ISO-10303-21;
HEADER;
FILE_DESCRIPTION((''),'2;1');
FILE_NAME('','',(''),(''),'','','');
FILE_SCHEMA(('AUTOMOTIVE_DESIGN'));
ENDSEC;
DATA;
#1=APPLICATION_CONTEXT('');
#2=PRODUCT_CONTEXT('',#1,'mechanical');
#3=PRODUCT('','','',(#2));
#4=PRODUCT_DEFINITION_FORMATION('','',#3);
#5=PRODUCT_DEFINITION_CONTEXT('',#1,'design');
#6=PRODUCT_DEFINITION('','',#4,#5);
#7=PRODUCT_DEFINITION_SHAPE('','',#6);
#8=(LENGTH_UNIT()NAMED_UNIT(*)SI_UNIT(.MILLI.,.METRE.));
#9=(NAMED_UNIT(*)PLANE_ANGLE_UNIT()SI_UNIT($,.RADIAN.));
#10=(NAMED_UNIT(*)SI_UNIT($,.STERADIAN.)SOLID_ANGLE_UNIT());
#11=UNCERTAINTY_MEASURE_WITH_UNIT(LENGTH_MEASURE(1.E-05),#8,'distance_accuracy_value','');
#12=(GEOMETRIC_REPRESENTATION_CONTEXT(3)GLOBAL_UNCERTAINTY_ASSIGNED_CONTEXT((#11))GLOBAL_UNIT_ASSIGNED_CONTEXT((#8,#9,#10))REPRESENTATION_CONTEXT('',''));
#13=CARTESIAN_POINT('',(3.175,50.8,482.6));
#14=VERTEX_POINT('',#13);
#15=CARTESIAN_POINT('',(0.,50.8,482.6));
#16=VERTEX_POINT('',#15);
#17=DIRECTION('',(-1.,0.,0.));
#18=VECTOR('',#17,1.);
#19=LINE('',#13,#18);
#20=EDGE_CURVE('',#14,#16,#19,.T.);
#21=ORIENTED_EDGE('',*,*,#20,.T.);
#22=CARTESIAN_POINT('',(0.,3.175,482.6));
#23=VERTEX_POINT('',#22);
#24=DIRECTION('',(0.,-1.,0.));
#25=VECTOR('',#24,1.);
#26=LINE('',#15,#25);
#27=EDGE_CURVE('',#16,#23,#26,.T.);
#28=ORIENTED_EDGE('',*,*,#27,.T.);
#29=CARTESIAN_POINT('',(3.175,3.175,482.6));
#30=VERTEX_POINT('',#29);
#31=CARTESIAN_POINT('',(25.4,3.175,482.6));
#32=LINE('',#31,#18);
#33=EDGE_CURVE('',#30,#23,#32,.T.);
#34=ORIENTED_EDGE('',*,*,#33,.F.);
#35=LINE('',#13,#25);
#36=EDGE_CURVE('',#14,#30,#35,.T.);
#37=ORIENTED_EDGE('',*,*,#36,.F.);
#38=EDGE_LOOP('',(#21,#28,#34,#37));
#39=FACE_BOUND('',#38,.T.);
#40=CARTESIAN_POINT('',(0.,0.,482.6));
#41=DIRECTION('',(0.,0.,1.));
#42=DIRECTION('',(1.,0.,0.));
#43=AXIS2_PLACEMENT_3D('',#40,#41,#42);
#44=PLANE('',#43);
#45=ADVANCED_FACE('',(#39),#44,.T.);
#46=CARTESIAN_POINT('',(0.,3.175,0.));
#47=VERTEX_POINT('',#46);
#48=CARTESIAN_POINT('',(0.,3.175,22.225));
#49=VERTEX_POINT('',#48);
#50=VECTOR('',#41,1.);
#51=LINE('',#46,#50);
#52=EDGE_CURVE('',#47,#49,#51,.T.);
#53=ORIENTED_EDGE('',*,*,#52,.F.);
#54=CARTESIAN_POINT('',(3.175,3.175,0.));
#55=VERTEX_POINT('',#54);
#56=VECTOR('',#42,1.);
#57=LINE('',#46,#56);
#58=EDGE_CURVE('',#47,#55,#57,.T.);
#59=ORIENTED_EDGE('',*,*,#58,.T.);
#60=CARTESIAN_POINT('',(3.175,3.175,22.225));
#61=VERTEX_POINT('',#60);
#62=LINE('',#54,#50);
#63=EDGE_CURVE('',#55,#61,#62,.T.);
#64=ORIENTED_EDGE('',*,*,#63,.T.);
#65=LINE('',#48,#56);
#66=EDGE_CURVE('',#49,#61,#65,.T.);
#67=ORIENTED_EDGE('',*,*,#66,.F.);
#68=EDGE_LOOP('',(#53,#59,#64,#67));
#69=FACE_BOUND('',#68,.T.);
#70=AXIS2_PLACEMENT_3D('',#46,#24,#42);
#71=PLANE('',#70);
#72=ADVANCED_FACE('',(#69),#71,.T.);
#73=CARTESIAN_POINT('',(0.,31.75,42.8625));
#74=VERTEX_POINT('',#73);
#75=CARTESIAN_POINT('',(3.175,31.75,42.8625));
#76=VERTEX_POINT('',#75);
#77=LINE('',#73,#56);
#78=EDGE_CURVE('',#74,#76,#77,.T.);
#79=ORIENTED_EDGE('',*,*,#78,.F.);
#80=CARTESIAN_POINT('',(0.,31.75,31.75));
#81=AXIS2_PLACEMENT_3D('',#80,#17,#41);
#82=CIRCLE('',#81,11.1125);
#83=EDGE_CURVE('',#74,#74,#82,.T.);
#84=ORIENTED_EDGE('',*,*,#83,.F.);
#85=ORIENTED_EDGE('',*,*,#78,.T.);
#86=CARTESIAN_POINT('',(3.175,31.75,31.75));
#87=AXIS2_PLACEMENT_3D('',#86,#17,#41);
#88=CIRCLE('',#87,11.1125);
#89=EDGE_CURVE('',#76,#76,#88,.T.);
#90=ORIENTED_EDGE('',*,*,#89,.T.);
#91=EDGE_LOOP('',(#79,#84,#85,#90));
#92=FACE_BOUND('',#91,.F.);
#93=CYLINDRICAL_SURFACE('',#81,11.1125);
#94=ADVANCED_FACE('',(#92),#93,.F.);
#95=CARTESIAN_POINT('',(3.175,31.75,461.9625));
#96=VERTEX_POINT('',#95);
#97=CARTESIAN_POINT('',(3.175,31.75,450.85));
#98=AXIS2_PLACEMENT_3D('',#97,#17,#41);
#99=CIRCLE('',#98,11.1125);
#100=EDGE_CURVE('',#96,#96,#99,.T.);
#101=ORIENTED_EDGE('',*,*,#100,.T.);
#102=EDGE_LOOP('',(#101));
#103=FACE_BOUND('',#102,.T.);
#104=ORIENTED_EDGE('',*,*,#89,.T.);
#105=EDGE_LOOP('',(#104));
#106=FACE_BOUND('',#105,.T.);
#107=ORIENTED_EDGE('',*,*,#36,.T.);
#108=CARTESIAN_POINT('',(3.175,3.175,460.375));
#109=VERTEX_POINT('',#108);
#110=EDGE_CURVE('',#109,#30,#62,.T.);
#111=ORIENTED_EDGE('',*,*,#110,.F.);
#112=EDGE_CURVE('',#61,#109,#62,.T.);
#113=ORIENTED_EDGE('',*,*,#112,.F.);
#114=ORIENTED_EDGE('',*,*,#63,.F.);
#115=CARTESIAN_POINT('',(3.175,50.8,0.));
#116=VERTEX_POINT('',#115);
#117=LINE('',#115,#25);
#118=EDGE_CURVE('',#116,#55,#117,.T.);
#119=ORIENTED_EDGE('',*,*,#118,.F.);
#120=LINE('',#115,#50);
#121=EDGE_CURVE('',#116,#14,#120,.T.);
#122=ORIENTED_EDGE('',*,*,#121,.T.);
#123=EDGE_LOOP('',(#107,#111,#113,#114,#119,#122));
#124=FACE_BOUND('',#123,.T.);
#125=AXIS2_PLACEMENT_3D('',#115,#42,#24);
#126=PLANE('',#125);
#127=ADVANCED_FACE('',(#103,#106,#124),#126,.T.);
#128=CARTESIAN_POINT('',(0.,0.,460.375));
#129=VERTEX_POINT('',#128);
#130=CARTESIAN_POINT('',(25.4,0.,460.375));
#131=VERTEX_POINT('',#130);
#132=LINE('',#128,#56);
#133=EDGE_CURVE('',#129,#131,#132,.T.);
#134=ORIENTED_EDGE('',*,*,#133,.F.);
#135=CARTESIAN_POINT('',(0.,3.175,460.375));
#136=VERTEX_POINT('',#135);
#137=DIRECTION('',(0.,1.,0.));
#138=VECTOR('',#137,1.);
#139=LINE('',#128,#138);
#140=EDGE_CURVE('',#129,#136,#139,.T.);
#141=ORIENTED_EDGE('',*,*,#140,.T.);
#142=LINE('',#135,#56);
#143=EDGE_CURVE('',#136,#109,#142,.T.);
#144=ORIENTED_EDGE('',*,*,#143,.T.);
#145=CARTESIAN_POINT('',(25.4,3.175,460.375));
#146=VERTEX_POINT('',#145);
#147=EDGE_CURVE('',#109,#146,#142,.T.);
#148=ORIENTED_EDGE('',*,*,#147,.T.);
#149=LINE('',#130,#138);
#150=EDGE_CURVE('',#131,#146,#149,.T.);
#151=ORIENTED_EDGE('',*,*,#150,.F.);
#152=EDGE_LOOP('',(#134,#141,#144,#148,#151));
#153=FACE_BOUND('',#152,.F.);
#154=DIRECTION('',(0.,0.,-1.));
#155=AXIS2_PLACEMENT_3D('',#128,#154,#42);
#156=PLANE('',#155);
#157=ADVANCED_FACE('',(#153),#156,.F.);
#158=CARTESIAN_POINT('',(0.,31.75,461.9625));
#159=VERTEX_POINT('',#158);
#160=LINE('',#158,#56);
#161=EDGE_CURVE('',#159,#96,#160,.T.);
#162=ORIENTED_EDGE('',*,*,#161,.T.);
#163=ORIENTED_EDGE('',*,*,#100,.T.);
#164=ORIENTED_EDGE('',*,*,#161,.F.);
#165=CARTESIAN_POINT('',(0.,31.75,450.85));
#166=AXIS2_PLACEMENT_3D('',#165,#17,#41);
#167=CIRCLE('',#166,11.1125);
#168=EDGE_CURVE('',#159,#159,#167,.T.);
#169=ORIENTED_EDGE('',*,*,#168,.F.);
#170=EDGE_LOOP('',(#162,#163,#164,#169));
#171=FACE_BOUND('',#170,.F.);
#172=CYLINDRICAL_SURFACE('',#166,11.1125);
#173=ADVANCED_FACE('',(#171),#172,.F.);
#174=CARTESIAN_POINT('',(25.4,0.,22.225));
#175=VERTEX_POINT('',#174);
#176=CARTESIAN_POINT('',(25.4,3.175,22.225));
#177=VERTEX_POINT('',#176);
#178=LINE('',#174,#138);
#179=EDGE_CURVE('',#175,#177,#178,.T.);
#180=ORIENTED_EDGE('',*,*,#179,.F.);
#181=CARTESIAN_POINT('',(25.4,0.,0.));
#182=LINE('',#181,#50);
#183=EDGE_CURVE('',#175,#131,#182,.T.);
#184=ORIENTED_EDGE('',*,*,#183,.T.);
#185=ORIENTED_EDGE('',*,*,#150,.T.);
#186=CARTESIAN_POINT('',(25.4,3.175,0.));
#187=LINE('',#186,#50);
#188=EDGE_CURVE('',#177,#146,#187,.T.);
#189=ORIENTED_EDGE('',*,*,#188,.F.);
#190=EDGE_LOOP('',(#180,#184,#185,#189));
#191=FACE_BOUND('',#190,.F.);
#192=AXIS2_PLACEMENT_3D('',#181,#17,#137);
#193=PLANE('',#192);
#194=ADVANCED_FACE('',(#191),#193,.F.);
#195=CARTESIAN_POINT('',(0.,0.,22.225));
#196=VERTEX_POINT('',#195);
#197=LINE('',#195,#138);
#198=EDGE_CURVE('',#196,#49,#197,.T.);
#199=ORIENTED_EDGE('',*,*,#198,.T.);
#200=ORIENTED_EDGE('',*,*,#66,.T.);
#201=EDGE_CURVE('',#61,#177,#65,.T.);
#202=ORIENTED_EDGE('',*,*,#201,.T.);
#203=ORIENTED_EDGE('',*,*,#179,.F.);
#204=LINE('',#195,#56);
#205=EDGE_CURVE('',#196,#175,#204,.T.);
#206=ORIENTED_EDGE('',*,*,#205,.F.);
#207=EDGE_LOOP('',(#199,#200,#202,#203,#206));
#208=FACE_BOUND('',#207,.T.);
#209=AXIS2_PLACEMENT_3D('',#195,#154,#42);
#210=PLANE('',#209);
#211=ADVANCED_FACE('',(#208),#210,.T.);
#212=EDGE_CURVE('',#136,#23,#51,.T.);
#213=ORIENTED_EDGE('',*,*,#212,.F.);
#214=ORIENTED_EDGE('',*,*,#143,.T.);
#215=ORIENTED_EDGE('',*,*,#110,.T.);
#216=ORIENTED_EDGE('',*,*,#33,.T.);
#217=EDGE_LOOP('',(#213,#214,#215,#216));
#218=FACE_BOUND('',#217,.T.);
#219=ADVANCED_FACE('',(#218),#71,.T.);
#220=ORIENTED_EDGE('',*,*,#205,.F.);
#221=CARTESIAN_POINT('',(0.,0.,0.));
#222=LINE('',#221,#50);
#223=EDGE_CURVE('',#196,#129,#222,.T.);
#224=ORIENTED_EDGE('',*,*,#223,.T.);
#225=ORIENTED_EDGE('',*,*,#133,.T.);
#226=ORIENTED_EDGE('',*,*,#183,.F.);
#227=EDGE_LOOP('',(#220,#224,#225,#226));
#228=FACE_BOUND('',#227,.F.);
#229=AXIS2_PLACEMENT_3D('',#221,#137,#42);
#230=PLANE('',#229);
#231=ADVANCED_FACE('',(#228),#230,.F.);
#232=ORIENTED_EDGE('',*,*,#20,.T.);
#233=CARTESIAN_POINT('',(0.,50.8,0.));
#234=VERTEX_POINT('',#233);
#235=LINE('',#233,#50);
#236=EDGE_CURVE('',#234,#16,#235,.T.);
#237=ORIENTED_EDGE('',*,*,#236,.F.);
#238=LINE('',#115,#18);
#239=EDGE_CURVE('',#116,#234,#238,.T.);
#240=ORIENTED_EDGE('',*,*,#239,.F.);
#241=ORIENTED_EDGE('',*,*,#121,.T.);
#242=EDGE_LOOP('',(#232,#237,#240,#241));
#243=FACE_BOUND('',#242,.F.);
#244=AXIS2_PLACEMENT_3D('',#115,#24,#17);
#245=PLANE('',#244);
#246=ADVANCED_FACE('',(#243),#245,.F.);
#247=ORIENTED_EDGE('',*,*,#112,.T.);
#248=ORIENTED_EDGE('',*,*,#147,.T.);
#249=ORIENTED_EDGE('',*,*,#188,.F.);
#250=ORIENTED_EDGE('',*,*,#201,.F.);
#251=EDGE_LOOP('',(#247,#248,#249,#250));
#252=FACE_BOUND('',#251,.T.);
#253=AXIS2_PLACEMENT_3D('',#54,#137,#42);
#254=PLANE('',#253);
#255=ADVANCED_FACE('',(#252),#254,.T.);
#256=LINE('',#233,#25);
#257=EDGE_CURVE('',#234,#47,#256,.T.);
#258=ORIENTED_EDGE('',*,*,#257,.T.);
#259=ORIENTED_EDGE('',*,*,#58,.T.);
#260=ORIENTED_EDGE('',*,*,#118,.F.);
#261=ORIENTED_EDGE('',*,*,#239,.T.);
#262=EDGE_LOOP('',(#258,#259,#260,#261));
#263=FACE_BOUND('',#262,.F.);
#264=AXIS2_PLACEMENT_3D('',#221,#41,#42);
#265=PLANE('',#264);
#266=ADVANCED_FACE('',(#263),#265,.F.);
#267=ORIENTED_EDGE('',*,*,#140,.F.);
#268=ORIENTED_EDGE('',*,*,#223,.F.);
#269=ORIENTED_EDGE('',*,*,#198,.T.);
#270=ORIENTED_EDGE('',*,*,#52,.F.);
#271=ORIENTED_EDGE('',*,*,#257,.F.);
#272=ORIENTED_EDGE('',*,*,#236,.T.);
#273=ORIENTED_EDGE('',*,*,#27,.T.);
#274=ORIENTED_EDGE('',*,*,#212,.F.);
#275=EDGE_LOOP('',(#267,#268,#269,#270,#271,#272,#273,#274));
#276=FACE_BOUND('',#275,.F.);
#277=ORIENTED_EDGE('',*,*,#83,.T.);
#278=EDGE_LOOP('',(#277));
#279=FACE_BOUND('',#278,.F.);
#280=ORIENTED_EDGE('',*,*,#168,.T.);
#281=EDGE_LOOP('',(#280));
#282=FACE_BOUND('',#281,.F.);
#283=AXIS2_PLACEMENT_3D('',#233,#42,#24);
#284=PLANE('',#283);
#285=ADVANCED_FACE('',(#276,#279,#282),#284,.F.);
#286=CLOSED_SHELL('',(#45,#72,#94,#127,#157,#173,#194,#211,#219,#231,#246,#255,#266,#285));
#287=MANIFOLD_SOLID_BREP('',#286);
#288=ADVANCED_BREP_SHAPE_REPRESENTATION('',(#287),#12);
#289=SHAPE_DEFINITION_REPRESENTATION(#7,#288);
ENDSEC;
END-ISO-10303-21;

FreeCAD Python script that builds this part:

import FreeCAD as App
import Part
import Sketcher
Q = App.Units.Quantity

doc = App.newDocument("Part")
body = doc.addObject("PartDesign::Body", "Body")

# Sketch on XY plane
sketch1 = doc.addObject("Sketcher::SketchObject", "Sketch")
body.addObject(sketch1)
sketch1.AttachmentSupport = (doc.XY_Plane, [""])
sketch1.MapMode = "FlatFace"
sketch1.addGeometry([
    Part.LineSegment(App.Vector(0, 50.8, 0), App.Vector(0, 0, 0)),  # 0
    Part.LineSegment(App.Vector(0, 0, 0), App.Vector(25.4, 0, 0)),  # 1
    Part.LineSegment(App.Vector(25.4, 0, 0), App.Vector(25.4, 3.2, 0)),  # 2
    Part.LineSegment(App.Vector(25.4, 3.2, 0), App.Vector(3.2, 3.2, 0)),  # 3
    Part.LineSegment(App.Vector(3.2, 3.2, 0), App.Vector(3.2, 50.8, 0)),  # 4
    Part.LineSegment(App.Vector(3.2, 50.8, 0), App.Vector(0, 50.8, 0)),  # 5
], False)
sketch1.addConstraint([
    Sketcher.Constraint("Coincident", 0, 2, 1, 1),
    Sketcher.Constraint("Coincident", 1, 2, 2, 1),
    Sketcher.Constraint("Coincident", 2, 2, 3, 1),
    Sketcher.Constraint("Coincident", 3, 2, 4, 1),
    Sketcher.Constraint("Coincident", 4, 2, 5, 1),
    Sketcher.Constraint("Coincident", 5, 2, 0, 1),
    Sketcher.Constraint("Vertical", 0),
    Sketcher.Constraint("Horizontal", 1),
    Sketcher.Constraint("Vertical", 2),
    Sketcher.Constraint("Horizontal", 3),
    Sketcher.Constraint("Vertical", 4),
    Sketcher.Constraint("Horizontal", 5),
    Sketcher.Constraint("Coincident", 0, 2, -1, 1),
    Sketcher.Constraint("Equal", 5, 2),
    Sketcher.Constraint("DistanceX", 1, 1, 1, 2, Q("1 in")),
    Sketcher.Constraint("DistanceY", 0, 2, 0, 1, Q("2 in")),
    Sketcher.Constraint("DistanceX", 5, 2, 5, 1, Q("0.125 in")),
])
pad1 = doc.addObject("PartDesign::Pad", "Pad")
body.addObject(pad1)
pad1.Profile = sketch1
pad1.Length = Q("19 in")

# Sketch on YZ plane
sketch2 = doc.addObject("Sketcher::SketchObject", "Sketch001")
body.addObject(sketch2)
sketch2.AttachmentSupport = (doc.YZ_Plane, [""])
sketch2.MapMode = "FlatFace"
sketch2.addGeometry([
    Part.Circle(App.Vector(32, 451, 0), App.Vector(0, 0, 1), 11),
    Part.Circle(App.Vector(32, 32, 0), App.Vector(0, 0, 1), 11),
], False)
sketch2.addConstraint([
    Sketcher.Constraint("Equal", 0, 1),
    Sketcher.Constraint("Vertical", 0, 3, 1, 3),
    Sketcher.Constraint("Diameter", 0, Q("0.875 in")),
    Sketcher.Constraint("DistanceX", -1, 1, 0, 3, Q("1.25 in")),
    Sketcher.Constraint("DistanceY", -1, 1, 1, 3, Q("1.25 in")),
    Sketcher.Constraint("DistanceY", 1, 3, 0, 3, Q("16.5 in")),
])
pocket1 = doc.addObject("PartDesign::Pocket", "Pocket")
body.addObject(pocket1)
pocket1.Profile = sketch2
pocket1.Length = Q("20 in")
pocket1.Reversed = True

# Sketch on XZ plane
sketch3 = doc.addObject("Sketcher::SketchObject", "Sketch002")
body.addObject(sketch3)
sketch3.AttachmentSupport = (doc.XZ_Plane, [""])
sketch3.MapMode = "FlatFace"
sketch3.addGeometry([
    Part.LineSegment(App.Vector(0, 22, 0), App.Vector(0, 0, 0)),  # 0
    Part.LineSegment(App.Vector(0, 0, 0), App.Vector(25, 0, 0)),  # 1
    Part.LineSegment(App.Vector(25, 0, 0), App.Vector(25, 22, 0)),  # 2
    Part.LineSegment(App.Vector(25, 22, 0), App.Vector(0, 22, 0)),  # 3
    Part.LineSegment(App.Vector(0, 483, 0), App.Vector(0, 460, 0)),  # 4
    Part.LineSegment(App.Vector(0, 460, 0), App.Vector(25, 460, 0)),  # 5
    Part.LineSegment(App.Vector(25, 460, 0), App.Vector(25, 483, 0)),  # 6
    Part.LineSegment(App.Vector(25, 483, 0), App.Vector(0, 483, 0)),  # 7
], False)
sketch3.addConstraint([
    Sketcher.Constraint("Coincident", 0, 2, 1, 1),
    Sketcher.Constraint("Coincident", 1, 2, 2, 1),
    Sketcher.Constraint("Coincident", 2, 2, 3, 1),
    Sketcher.Constraint("Coincident", 3, 2, 0, 1),
    Sketcher.Constraint("Coincident", 4, 2, 5, 1),
    Sketcher.Constraint("Coincident", 5, 2, 6, 1),
    Sketcher.Constraint("Coincident", 6, 2, 7, 1),
    Sketcher.Constraint("Coincident", 7, 2, 4, 1),
    Sketcher.Constraint("Vertical", 0),
    Sketcher.Constraint("Horizontal", 1),
    Sketcher.Constraint("Vertical", 2),
    Sketcher.Constraint("Horizontal", 3),
    Sketcher.Constraint("Vertical", 4),
    Sketcher.Constraint("Horizontal", 5),
    Sketcher.Constraint("Vertical", 6),
    Sketcher.Constraint("Horizontal", 7),
    Sketcher.Constraint("Coincident", 0, 2, -1, 1),
    Sketcher.Constraint("PointOnObject", 4, 2, -2),
    Sketcher.Constraint("Vertical", 2, 2, 5, 2),
    Sketcher.Constraint("Equal", 2, 4),
    Sketcher.Constraint("DistanceX", 1, 1, 1, 2, Q("1 in")),
    Sketcher.Constraint("DistanceY", 0, 2, 0, 1, Q("0.875 in")),
    Sketcher.Constraint("DistanceY", -1, 1, 6, 2, Q("19 in")),
])
pocket2 = doc.addObject("PartDesign::Pocket", "Pocket001")
body.addObject(pocket2)
pocket2.Profile = sketch3
pocket2.Length = Q("0.125 in")

doc.recompute()
